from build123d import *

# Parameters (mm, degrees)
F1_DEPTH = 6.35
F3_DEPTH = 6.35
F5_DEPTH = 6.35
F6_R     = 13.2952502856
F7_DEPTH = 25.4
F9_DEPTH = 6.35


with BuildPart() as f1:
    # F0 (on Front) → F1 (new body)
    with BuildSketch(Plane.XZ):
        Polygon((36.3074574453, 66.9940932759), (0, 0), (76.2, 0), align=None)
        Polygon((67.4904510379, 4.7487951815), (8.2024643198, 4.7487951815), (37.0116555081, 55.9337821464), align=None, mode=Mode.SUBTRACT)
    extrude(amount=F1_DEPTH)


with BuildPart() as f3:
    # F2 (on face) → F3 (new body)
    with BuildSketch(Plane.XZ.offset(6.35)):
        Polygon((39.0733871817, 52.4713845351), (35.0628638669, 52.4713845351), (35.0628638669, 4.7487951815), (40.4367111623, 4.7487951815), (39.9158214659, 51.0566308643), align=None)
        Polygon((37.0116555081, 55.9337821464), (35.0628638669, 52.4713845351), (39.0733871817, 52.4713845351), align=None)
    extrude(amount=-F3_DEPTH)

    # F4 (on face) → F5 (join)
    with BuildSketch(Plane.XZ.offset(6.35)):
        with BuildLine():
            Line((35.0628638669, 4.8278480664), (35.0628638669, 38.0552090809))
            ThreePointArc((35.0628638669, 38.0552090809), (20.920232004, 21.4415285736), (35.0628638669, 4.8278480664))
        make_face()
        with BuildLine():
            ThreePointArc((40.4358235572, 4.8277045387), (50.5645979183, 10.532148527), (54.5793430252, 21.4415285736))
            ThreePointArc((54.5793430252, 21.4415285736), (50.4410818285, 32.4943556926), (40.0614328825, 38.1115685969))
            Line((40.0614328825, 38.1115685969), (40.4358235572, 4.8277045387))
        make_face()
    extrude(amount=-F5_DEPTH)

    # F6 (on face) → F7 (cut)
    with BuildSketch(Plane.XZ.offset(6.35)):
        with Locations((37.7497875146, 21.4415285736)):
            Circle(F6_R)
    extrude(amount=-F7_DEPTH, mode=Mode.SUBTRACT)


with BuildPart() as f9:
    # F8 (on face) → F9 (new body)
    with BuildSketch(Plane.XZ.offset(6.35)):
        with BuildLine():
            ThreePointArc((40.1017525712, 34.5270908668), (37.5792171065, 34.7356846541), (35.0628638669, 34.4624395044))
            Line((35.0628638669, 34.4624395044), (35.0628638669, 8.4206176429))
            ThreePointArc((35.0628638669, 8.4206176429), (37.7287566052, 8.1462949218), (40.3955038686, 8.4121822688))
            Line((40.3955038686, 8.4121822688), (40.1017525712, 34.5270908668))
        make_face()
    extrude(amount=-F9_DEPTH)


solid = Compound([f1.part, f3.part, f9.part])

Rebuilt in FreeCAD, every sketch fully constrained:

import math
import FreeCAD as App
import Part
import Sketcher
Q = App.Units.Quantity

doc = App.newDocument("Part")
body = doc.addObject("PartDesign::Body", "Body")

sketch1 = body.newObject("Sketcher::SketchObject", "Sketch")
sketch1.AttachmentSupport = (doc.getObject("XZ_Plane"), [""])
sketch1.MapMode = "FlatFace"
sketch1.addGeometry(Part.LineSegment(App.Vector(36, 67, 0), App.Vector(0, 0, 0)), False)
sketch1.addGeometry(Part.LineSegment(App.Vector(0, 0, 0), App.Vector(76, 0, 0)), False)
sketch1.addGeometry(Part.LineSegment(App.Vector(76, 0, 0), App.Vector(36, 67, 0)), False)
sketch1.addGeometry(Part.LineSegment(App.Vector(37, 56, 0), App.Vector(67, 5, 0)), False)
sketch1.addGeometry(Part.LineSegment(App.Vector(67, 5, 0), App.Vector(8, 5, 0)), False)
sketch1.addGeometry(Part.LineSegment(App.Vector(8, 5, 0), App.Vector(37, 56, 0)), False)
sketch1.addConstraint(Sketcher.Constraint("Coincident", 0, 2, 1, 1))
sketch1.addConstraint(Sketcher.Constraint("Coincident", 1, 2, 2, 1))
sketch1.addConstraint(Sketcher.Constraint("Coincident", 2, 2, 0, 1))
sketch1.addConstraint(Sketcher.Constraint("Coincident", 3, 2, 4, 1))
sketch1.addConstraint(Sketcher.Constraint("Coincident", 4, 2, 5, 1))
sketch1.addConstraint(Sketcher.Constraint("Coincident", 5, 2, 3, 1))
sketch1.addConstraint(Sketcher.Constraint("Horizontal", 1))
sketch1.addConstraint(Sketcher.Constraint("Horizontal", 4))
sketch1.addConstraint(Sketcher.Constraint("Coincident", 0, 2, -1, 1))
sketch1.addConstraint(Sketcher.Constraint("Parallel", 2, 3))
sketch1.addConstraint(Sketcher.Constraint("DistanceX", 1, 1, 1, 2, Q("3 in")))
sketch1.addConstraint(Sketcher.Constraint("Distance", 0, Q("3 in")))
sketch1.addConstraint(Sketcher.Constraint("DistanceY", 3, 2, 2, 2, 62.245298))
sketch1.addConstraint(Sketcher.Constraint("DistanceX", 2, 2, 5, 2, 0.704198))
sketch1.addConstraint(Sketcher.Constraint("Distance", 2, 77.97194))
sketch1.addConstraint(Sketcher.Constraint("DistanceX", 4, 2, 4, 1, 59.287987))
sketch1.addConstraint(Sketcher.Constraint("DistanceX", -1, 1, 3, 2, 67.490451))
pad1 = body.newObject("PartDesign::Pad", "Pad")
pad1.Profile = sketch1
pad1.Length = Q("0.25 in")
body2 = doc.addObject("PartDesign::Body", "Body001")

sketch2 = body2.newObject("Sketcher::SketchObject", "Sketch001")
sketch2.AttachmentSupport = (doc.getObject("XZ_Plane001"), [""])
sketch2.MapMode = "FlatFace"
sketch2.AttachmentOffset = App.Placement(App.Vector(0, 0, 0.25 * 25.4), App.Rotation())
sketch2.addGeometry(Part.LineSegment(App.Vector(35.1, 52.5, 0), App.Vector(35.1, 4.7, 0)), False)
sketch2.addGeometry(Part.LineSegment(App.Vector(35.1, 4.7, 0), App.Vector(40.4, 4.7, 0)), False)
sketch2.addGeometry(Part.LineSegment(App.Vector(40.4, 4.7, 0), App.Vector(39.9, 51.1, 0)), False)
sketch2.addGeometry(Part.LineSegment(App.Vector(39.9, 51.1, 0), App.Vector(39.1, 52.5, 0)), False)
sketch2.addGeometry(Part.LineSegment(App.Vector(39.1, 52.5, 0), App.Vector(37, 55.9, 0)), False)
sketch2.addGeometry(Part.LineSegment(App.Vector(37, 55.9, 0), App.Vector(35.1, 52.5, 0)), False)
sketch2.addConstraint(Sketcher.Constraint("Coincident", 0, 2, 1, 1))
sketch2.addConstraint(Sketcher.Constraint("Coincident", 1, 2, 2, 1))
sketch2.addConstraint(Sketcher.Constraint("Coincident", 2, 2, 3, 1))
sketch2.addConstraint(Sketcher.Constraint("Coincident", 3, 2, 4, 1))
sketch2.addConstraint(Sketcher.Constraint("Coincident", 4, 2, 5, 1))
sketch2.addConstraint(Sketcher.Constraint("Coincident", 5, 2, 0, 1))
sketch2.addConstraint(Sketcher.Constraint("Vertical", 0))
sketch2.addConstraint(Sketcher.Constraint("Horizontal", 1))
sketch2.addConstraint(Sketcher.Constraint("Parallel", 3, 4))
sketch2.addConstraint(Sketcher.Constraint("Horizontal", 3, 2, 5, 2))
sketch2.addConstraint(Sketcher.Constraint("DistanceY", 0, 2, 0, 1, 47.722589))
sketch2.addConstraint(Sketcher.Constraint("Distance", 3, 1.646579))
sketch2.addConstraint(Sketcher.Constraint("Distance", 5, 3.973158))
sketch2.addConstraint(Sketcher.Constraint("DistanceX", 1, 1, 1, 2, 5.373847))
sketch2.addConstraint(Sketcher.Constraint("DistanceX", -1, 1, 1, 2, 40.436711))
sketch2.addConstraint(Sketcher.Constraint("DistanceX", -1, 1, 2, 2, 39.915821))
sketch2.addConstraint(Sketcher.Constraint("DistanceY", -1, 1, 2, 2, 51.056631))
sketch2.addConstraint(Sketcher.Constraint("DistanceX", 4, 2, 3, 2, 2.061732))
pad2 = body2.newObject("PartDesign::Pad", "Pad001")
pad2.Profile = sketch2
pad2.Length = Q("0.25 in")
pad2.Reversed = True

sketch3 = body2.newObject("Sketcher::SketchObject", "Sketch002")
sketch3.AttachmentSupport = (doc.getObject("XZ_Plane001"), [""])
sketch3.MapMode = "FlatFace"
sketch3.AttachmentOffset = App.Placement(App.Vector(0, 0, 0.25 * 25.4), App.Rotation())
sketch3.addGeometry(Part.LineSegment(App.Vector(35, 5, 0), App.Vector(35, 38, 0)), False)
sketch3.addGeometry(Part.ArcOfCircle(Part.Circle(App.Vector(38, 21, 0), App.Vector(0, 0, 1), 17), math.radians(99), math.radians(261)), False)
sketch3.addGeometry(Part.ArcOfCircle(Part.Circle(App.Vector(38, 21, 0), App.Vector(0, 0, 1), 17), math.radians(-81), math.radians(0)), False)
sketch3.addGeometry(Part.ArcOfCircle(Part.Circle(App.Vector(38, 21, 0), App.Vector(0, 0, 1), 17), math.radians(0), math.radians(82)), False)
sketch3.addGeometry(Part.LineSegment(App.Vector(40, 38, 0), App.Vector(40, 5, 0)), False)
sketch3.addConstraint(Sketcher.Constraint("Coincident", 0, 1, 1, 2))
sketch3.addConstraint(Sketcher.Constraint("Coincident", 1, 1, 0, 2))
sketch3.addConstraint(Sketcher.Constraint("Tangent", 2, 2, 3, 1))
sketch3.addConstraint(Sketcher.Constraint("Coincident", 3, 2, 4, 1))
sketch3.addConstraint(Sketcher.Constraint("Coincident", 4, 2, 2, 1))
sketch3.addConstraint(Sketcher.Constraint("Vertical", 0))
sketch3.addConstraint(Sketcher.Constraint("Coincident", 2, 3, 1, 3))
sketch3.addConstraint(Sketcher.Constraint("Equal", 1, 2))
sketch3.addConstraint(Sketcher.Constraint("Equal", 2, 3))
sketch3.addConstraint(Sketcher.Constraint("Horizontal", 3, 3, 2, 2))
sketch3.addConstraint(Sketcher.Constraint("Radius", 1, 16.829556))
sketch3.addConstraint(Sketcher.Constraint("DistanceY", 0, 1, 0, 2, 33.227361))
sketch3.addConstraint(Sketcher.Constraint("Distance", 4, 33.28597))
sketch3.addConstraint(Sketcher.Constraint("DistanceY", -1, 1, 1, 3, 21.441529))
sketch3.addConstraint(Sketcher.Constraint("DistanceY", -1, 1, 3, 2, 38.111569))
sketch3.addConstraint(Sketcher.Constraint("DistanceX", -1, 1, 1, 3, 37.749788))
pad3 = body2.newObject("PartDesign::Pad", "Pad002")
pad3.Profile = sketch3
pad3.Length = Q("0.25 in")
pad3.Reversed = True

sketch4 = body2.newObject("Sketcher::SketchObject", "Sketch003")
sketch4.AttachmentSupport = (doc.getObject("XZ_Plane001"), [""])
sketch4.MapMode = "FlatFace"
sketch4.AttachmentOffset = App.Placement(App.Vector(0, 0, 0.25 * 25.4), App.Rotation())
sketch4.addGeometry(Part.Circle(App.Vector(38, 21, 0), App.Vector(0, 0, 1), 13), False)
sketch4.addConstraint(Sketcher.Constraint("Diameter", 0, 26.590501))
sketch4.addConstraint(Sketcher.Constraint("DistanceY", -1, 1, 0, 3, 21.441529))
sketch4.addConstraint(Sketcher.Constraint("DistanceX", -1, 1, 0, 3, 37.749788))
pocket1 = body2.newObject("PartDesign::Pocket", "Pocket")
pocket1.Profile = sketch4
pocket1.Length = Q("1 in")
body3 = doc.addObject("PartDesign::Body", "Body002")

sketch5 = body3.newObject("Sketcher::SketchObject", "Sketch004")
sketch5.AttachmentSupport = (doc.getObject("XZ_Plane002"), [""])
sketch5.MapMode = "FlatFace"
sketch5.AttachmentOffset = App.Placement(App.Vector(0, 0, 0.25 * 25.4), App.Rotation())
sketch5.addGeometry(Part.ArcOfCircle(Part.Circle(App.Vector(38, 21, 0), App.Vector(0, 0, 1), 13), math.radians(80), math.radians(102)), False)
sketch5.addGeometry(Part.LineSegment(App.Vector(35, 34, 0), App.Vector(35, 8, 0)), False)
sketch5.addGeometry(Part.ArcOfCircle(Part.Circle(App.Vector(38, 21, 0), App.Vector(0, 0, 1), 13), math.radians(-102), math.radians(-79)), False)
sketch5.addGeometry(Part.LineSegment(App.Vector(40, 8, 0), App.Vector(40, 35, 0)), False)
sketch5.addConstraint(Sketcher.Constraint("Coincident", 0, 2, 1, 1))
sketch5.addConstraint(Sketcher.Constraint("Coincident", 1, 2, 2, 1))
sketch5.addConstraint(Sketcher.Constraint("Coincident", 2, 2, 3, 1))
sketch5.addConstraint(Sketcher.Constraint("Coincident", 3, 2, 0, 1))
sketch5.addConstraint(Sketcher.Constraint("Vertical", 1))
sketch5.addConstraint(Sketcher.Constraint("Coincident", 2, 3, 0, 3))
sketch5.addConstraint(Sketcher.Constraint("Equal", 0, 2))
sketch5.addConstraint(Sketcher.Constraint("Radius", 0, 13.29525))
sketch5.addConstraint(Sketcher.Constraint("DistanceY", 1, 2, 1, 1, 26.041822))
sketch5.addConstraint(Sketcher.Constraint("Distance", 3, 26.116561))
sketch5.addConstraint(Sketcher.Constraint("DistanceY", -1, 1, 0, 3, 21.441529))
sketch5.addConstraint(Sketcher.Constraint("DistanceY", -1, 1, 3, 2, 34.527091))
sketch5.addConstraint(Sketcher.Constraint("DistanceX", -1, 1, 0, 3, 37.749788))
pad4 = body3.newObject("PartDesign::Pad", "Pad003")
pad4.Profile = sketch5
pad4.Length = Q("0.25 in")
pad4.Reversed = True

doc.recompute()
